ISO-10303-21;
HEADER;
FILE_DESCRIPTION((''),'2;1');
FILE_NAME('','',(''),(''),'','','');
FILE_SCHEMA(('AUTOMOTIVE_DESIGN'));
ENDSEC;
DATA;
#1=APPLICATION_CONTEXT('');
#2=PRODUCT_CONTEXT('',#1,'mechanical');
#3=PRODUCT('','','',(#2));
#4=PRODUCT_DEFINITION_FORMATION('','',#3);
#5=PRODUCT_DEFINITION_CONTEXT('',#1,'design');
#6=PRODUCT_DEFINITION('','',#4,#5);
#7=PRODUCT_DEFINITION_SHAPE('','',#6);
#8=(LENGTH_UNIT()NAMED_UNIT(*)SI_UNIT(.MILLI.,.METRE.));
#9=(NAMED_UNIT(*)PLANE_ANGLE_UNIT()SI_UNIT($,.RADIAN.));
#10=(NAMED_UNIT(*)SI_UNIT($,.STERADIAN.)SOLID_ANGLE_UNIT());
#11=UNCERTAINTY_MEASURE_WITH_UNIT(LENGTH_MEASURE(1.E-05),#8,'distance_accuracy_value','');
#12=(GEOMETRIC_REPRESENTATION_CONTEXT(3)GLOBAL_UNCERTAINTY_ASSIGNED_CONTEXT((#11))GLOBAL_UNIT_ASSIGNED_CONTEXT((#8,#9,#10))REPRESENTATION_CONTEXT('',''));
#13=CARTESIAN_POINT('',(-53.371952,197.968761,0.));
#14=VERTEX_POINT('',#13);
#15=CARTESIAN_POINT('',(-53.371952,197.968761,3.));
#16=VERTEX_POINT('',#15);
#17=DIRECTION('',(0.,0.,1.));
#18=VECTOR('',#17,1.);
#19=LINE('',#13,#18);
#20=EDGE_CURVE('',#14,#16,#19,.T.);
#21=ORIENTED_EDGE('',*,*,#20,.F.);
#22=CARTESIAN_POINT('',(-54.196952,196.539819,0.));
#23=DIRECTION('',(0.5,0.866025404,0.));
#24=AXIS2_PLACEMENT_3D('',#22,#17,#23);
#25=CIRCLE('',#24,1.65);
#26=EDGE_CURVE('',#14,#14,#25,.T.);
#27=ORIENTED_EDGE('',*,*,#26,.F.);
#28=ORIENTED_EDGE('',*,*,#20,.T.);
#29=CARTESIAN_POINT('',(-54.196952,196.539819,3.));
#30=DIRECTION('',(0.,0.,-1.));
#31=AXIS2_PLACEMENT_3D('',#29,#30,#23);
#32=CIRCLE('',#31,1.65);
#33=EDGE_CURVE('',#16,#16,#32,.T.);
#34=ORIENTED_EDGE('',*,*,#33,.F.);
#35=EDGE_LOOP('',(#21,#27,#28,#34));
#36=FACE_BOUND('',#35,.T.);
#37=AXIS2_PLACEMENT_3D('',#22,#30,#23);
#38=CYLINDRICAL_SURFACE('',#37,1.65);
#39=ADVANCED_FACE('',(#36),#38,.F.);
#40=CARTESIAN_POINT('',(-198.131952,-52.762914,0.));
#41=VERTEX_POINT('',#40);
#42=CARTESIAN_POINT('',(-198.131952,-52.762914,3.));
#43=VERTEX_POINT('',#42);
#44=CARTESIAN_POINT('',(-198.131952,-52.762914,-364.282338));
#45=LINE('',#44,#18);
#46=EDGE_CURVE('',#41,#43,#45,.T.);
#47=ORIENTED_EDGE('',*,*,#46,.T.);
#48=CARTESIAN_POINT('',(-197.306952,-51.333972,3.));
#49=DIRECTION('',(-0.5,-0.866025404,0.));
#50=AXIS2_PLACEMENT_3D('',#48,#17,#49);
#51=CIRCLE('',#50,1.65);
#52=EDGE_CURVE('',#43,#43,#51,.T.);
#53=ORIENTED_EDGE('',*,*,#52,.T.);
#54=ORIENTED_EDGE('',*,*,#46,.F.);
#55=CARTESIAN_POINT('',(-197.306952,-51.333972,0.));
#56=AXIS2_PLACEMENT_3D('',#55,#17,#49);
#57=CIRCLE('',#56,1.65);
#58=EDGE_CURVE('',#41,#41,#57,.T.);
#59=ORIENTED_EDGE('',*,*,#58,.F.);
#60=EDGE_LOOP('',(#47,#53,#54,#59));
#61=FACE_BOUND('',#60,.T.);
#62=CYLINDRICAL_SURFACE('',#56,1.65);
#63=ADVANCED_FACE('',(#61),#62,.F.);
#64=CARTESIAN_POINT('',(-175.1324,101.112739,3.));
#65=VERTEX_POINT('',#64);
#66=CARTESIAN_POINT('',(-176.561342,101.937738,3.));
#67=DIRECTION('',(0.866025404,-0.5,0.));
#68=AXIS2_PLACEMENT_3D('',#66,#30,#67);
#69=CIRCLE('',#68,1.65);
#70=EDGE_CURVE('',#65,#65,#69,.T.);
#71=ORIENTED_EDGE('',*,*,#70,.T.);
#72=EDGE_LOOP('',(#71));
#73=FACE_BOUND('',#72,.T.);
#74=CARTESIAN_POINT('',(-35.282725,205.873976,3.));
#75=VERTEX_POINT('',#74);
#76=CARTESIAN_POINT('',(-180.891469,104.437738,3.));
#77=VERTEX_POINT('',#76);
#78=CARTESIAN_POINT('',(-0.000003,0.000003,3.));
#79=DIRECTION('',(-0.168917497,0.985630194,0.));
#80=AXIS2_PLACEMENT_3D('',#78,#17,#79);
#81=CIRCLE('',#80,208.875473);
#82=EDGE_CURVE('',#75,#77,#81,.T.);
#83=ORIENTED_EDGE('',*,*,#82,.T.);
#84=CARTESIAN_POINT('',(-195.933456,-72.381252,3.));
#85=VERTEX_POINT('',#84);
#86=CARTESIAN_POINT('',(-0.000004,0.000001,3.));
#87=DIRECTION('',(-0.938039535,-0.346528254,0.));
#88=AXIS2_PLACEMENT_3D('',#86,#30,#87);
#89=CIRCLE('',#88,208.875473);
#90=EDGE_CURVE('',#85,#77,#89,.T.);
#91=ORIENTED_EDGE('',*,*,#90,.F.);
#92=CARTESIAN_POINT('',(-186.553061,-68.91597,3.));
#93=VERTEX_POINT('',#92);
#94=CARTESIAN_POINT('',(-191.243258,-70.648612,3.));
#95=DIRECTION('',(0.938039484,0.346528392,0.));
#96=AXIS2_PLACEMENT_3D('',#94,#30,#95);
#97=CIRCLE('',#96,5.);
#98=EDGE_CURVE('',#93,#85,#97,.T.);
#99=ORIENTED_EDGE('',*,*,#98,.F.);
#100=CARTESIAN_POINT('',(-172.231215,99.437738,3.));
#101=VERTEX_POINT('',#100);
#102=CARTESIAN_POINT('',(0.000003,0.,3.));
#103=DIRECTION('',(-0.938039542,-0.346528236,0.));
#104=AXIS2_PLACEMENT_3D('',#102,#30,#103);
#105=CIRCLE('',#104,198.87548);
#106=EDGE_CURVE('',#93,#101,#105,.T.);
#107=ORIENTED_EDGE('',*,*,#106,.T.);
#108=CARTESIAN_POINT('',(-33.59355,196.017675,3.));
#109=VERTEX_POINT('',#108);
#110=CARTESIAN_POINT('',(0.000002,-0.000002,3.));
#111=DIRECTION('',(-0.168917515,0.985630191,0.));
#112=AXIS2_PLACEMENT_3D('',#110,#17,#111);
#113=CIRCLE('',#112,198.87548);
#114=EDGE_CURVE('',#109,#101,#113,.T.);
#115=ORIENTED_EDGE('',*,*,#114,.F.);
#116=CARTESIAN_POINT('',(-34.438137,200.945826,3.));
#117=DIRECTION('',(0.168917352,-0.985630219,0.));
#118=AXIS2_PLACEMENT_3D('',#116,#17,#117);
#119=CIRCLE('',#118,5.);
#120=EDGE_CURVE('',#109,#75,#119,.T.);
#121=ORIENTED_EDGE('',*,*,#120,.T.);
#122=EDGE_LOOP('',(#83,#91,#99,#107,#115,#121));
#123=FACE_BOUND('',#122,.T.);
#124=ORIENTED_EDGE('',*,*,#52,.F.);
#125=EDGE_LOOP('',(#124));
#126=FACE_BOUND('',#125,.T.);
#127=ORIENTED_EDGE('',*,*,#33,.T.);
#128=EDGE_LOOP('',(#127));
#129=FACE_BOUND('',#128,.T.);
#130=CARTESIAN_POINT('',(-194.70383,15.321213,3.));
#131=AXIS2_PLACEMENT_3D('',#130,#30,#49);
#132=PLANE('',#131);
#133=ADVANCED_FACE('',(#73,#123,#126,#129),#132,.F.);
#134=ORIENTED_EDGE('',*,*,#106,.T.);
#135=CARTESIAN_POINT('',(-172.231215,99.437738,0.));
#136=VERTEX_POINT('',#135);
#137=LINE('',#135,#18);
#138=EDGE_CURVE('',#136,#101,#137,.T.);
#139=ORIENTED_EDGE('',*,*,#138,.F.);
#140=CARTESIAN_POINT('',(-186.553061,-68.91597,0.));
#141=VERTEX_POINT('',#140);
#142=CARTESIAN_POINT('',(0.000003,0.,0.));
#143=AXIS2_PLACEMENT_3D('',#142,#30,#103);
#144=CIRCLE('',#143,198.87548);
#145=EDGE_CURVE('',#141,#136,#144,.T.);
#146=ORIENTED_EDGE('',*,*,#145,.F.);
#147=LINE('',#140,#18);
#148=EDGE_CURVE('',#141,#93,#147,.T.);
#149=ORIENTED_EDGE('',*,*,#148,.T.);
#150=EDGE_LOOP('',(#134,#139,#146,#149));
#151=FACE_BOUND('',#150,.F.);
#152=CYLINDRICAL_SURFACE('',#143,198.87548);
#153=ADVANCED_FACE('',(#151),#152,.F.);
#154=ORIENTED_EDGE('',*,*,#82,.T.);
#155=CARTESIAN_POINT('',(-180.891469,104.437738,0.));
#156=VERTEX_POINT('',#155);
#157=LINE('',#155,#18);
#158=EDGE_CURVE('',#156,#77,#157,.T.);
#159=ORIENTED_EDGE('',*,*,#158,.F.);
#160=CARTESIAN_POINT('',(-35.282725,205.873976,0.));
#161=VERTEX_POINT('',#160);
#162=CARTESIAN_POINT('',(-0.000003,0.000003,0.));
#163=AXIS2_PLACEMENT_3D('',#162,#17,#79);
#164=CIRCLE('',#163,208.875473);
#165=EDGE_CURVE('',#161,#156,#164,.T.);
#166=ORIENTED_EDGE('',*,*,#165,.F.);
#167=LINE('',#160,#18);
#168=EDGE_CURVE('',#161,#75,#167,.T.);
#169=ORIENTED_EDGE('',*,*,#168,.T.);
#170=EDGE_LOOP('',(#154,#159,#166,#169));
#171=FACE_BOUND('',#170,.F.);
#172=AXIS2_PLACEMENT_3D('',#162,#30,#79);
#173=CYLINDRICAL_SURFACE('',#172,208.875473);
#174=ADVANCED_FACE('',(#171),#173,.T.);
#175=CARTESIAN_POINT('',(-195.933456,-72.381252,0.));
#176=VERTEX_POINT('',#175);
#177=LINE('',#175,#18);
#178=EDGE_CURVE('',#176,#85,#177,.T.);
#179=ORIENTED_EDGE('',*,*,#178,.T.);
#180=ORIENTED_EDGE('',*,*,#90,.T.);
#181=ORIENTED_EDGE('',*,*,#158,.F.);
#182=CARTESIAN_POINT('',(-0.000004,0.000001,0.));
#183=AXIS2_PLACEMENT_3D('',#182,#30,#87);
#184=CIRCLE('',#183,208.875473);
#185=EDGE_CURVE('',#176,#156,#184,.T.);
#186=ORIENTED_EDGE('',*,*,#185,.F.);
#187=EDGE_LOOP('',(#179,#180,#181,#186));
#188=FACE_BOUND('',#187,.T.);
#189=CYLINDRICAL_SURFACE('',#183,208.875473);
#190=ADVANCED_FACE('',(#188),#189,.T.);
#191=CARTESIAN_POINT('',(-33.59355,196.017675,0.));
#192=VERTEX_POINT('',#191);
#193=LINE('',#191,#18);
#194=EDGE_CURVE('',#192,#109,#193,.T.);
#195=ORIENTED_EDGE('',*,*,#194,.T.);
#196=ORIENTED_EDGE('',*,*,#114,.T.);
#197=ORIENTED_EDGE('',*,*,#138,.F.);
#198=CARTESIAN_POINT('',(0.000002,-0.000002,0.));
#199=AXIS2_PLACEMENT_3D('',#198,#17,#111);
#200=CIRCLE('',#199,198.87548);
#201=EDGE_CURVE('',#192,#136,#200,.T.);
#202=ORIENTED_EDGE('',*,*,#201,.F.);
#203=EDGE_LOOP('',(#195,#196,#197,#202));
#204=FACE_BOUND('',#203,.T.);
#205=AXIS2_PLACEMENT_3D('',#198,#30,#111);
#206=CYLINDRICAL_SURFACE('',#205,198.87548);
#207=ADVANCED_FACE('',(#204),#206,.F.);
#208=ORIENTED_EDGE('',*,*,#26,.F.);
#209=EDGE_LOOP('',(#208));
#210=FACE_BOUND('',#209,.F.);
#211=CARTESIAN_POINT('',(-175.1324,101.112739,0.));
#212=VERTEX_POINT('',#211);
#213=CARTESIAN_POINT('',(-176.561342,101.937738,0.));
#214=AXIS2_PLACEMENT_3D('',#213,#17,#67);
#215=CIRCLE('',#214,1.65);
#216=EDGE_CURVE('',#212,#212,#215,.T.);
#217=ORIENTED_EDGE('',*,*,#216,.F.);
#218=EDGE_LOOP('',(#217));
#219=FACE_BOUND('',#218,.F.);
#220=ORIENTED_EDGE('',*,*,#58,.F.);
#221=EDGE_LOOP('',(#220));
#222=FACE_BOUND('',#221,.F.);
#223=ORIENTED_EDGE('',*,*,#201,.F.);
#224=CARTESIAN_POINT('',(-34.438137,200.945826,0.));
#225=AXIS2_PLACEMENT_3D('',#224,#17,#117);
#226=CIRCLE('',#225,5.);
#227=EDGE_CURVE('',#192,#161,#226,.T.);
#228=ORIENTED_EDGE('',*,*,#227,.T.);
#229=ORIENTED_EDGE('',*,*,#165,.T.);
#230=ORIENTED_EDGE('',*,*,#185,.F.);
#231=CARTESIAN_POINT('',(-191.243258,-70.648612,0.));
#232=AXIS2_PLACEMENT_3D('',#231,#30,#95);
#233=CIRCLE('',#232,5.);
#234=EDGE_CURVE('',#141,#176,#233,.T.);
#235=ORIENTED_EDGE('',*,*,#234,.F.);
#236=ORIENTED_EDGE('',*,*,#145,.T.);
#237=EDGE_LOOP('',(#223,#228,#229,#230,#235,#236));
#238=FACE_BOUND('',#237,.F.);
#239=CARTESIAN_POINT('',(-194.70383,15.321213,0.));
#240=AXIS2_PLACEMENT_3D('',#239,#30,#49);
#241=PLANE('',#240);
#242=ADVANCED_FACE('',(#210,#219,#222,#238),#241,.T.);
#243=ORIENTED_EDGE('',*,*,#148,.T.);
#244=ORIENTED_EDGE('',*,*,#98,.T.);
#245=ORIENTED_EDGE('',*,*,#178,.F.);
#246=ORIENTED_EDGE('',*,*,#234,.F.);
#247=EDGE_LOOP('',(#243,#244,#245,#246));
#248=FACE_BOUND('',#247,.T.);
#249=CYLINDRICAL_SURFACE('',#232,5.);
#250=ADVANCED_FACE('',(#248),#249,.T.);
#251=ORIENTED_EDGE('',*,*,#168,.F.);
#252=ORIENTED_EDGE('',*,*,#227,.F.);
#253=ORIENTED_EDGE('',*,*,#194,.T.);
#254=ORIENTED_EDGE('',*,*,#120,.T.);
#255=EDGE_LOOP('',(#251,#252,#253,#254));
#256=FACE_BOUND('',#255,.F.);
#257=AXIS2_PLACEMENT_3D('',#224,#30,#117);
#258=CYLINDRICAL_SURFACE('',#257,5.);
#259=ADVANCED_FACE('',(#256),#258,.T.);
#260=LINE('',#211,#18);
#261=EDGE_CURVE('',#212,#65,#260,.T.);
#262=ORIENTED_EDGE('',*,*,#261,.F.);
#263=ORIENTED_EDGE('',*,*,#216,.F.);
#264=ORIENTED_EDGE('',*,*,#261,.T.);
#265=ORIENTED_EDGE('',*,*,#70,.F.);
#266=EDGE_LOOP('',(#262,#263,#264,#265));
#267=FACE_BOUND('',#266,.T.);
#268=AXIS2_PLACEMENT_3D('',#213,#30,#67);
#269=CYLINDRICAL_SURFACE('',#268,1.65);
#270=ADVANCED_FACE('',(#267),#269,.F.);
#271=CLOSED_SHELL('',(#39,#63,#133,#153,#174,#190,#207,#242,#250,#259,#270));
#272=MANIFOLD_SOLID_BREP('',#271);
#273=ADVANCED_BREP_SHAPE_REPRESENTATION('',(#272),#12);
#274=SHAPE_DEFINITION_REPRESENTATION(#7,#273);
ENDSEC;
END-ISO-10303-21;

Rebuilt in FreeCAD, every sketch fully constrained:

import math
import FreeCAD as App
import Part
import Sketcher

V = App.Vector

doc = App.newDocument("Part")
body = doc.addObject("PartDesign::Body", "Body")

# Sketch on XY plane
sketch1 = body.newObject("Sketcher::SketchObject", "Sketch")
sketch1.AttachmentSupport = (doc.getObject("XY_Plane"), [""])
sketch1.MapMode = "FlatFace"
sketch1.addGeometry(Part.ArcOfCircle(Part.Circle(V(-0.000001, -0.000003, 0), V(0, 0, 1), 198.87548), math.radians(39.724887), math.radians(90)), False)
sketch1.addGeometry(Part.ArcOfCircle(Part.Circle(V(156.805121, 130.297214, 0), V(0, 0, 1), 5), math.radians(-140.275122), math.radians(39.724894)), False)
sketch1.addGeometry(Part.ArcOfCircle(Part.Circle(V(0.000001, 0.000004, 0), V(0, 0, 1), 208.875473), math.radians(39.724886), math.radians(90)), False)
sketch1.addGeometry(Part.LineSegment(V(0, 208.875477, 0), V(0, 198.875477, 0)), False)
sketch1.addConstraint(Sketcher.Constraint("Tangent", 0, 1, 1, 1))
sketch1.addConstraint(Sketcher.Constraint("Tangent", 1, 2, 2, 1))
sketch1.addConstraint(Sketcher.Constraint("Coincident", 2, 2, 3, 1))
sketch1.addConstraint(Sketcher.Constraint("Coincident", 3, 2, 0, 2))
sketch1.addConstraint(Sketcher.Constraint("Vertical", 3))
sketch1.addConstraint(Sketcher.Constraint("Coincident", 0, 3, -1, 1))
sketch1.addConstraint(Sketcher.Constraint("Coincident", 2, 3, -1, 1))
sketch1.addConstraint(Sketcher.Constraint("PointOnObject", 2, 2, -2))
sketch1.addConstraint(Sketcher.Constraint("Radius", 1, 5.0))
sketch1.addConstraint(Sketcher.Constraint("Radius", 0, 198.87548))
sketch1.addConstraint(Sketcher.Constraint("DistanceY", 2, 3, 0, 1, 127.101701))
pad1 = body.newObject("PartDesign::Pad", "Pad")
pad1.Profile = sketch1
pad1.Length = 3

# Sketch on XY plane
sketch2 = body.newObject("Sketcher::SketchObject", "Sketch001")
sketch2.AttachmentSupport = (doc.getObject("XY_Plane"), [""])
sketch2.MapMode = "FlatFace"
sketch2.addGeometry(Part.Circle(V(143.11, 145.205847, 0), V(0, 0, 1), 1.65), False)
sketch2.addGeometry(Part.LineSegment(V(0, 205.525477, 0), V(0, 202.225477, 0)), False)
sketch2.addGeometry(Part.ArcOfCircle(Part.Circle(V(0, 203.875477, 0), V(0, 0, 1), 1.65), math.radians(-90), math.radians(90)), False)
sketch2.addConstraint(Sketcher.Constraint("Coincident", 1, 1, 2, 2))
sketch2.addConstraint(Sketcher.Constraint("Coincident", 2, 1, 1, 2))
sketch2.addConstraint(Sketcher.Constraint("Vertical", 1))
sketch2.addConstraint(Sketcher.Constraint("Equal", 0, 2))
sketch2.addConstraint(Sketcher.Constraint("PointOnObject", 2, 3, -2))
sketch2.addConstraint(Sketcher.Constraint("PointOnObject", 1, 1, -2))
sketch2.addConstraint(Sketcher.Constraint("Diameter", 0, 3.3))
sketch2.addConstraint(Sketcher.Constraint("DistanceX", -1, 1, 0, 3, 143.11))
sketch2.addConstraint(Sketcher.Constraint("DistanceY", 0, 3, 2, 3, 58.66963))
sketch2.addConstraint(Sketcher.Constraint("DistanceY", -1, 1, 0, 3, 145.205847))
pocket1 = body.newObject("PartDesign::Pocket", "Pocket")
pocket1.Profile = sketch2
pocket1.Type = "ThroughAll"
pocket1.Midplane = True
doc.recompute()

mirrored = body.newObject("PartDesign::Mirrored", "Mirrored")
mirrored.Originals = [pad1, pocket1]
mirrored.MirrorPlane = (doc.getObject("YZ_Plane"), [""])
body.Tip = mirrored
body2 = doc.addObject("PartDesign::Body", "Body001")
doc.recompute()

body.Placement = App.Placement(V(0, 0, 0), App.Rotation(V(0, 0, 1), 60))
boolean = body2.newObject("PartDesign::Boolean", "Boolean")
boolean.Type = "Fuse"
boolean.addObjects([body])

doc.recompute()
